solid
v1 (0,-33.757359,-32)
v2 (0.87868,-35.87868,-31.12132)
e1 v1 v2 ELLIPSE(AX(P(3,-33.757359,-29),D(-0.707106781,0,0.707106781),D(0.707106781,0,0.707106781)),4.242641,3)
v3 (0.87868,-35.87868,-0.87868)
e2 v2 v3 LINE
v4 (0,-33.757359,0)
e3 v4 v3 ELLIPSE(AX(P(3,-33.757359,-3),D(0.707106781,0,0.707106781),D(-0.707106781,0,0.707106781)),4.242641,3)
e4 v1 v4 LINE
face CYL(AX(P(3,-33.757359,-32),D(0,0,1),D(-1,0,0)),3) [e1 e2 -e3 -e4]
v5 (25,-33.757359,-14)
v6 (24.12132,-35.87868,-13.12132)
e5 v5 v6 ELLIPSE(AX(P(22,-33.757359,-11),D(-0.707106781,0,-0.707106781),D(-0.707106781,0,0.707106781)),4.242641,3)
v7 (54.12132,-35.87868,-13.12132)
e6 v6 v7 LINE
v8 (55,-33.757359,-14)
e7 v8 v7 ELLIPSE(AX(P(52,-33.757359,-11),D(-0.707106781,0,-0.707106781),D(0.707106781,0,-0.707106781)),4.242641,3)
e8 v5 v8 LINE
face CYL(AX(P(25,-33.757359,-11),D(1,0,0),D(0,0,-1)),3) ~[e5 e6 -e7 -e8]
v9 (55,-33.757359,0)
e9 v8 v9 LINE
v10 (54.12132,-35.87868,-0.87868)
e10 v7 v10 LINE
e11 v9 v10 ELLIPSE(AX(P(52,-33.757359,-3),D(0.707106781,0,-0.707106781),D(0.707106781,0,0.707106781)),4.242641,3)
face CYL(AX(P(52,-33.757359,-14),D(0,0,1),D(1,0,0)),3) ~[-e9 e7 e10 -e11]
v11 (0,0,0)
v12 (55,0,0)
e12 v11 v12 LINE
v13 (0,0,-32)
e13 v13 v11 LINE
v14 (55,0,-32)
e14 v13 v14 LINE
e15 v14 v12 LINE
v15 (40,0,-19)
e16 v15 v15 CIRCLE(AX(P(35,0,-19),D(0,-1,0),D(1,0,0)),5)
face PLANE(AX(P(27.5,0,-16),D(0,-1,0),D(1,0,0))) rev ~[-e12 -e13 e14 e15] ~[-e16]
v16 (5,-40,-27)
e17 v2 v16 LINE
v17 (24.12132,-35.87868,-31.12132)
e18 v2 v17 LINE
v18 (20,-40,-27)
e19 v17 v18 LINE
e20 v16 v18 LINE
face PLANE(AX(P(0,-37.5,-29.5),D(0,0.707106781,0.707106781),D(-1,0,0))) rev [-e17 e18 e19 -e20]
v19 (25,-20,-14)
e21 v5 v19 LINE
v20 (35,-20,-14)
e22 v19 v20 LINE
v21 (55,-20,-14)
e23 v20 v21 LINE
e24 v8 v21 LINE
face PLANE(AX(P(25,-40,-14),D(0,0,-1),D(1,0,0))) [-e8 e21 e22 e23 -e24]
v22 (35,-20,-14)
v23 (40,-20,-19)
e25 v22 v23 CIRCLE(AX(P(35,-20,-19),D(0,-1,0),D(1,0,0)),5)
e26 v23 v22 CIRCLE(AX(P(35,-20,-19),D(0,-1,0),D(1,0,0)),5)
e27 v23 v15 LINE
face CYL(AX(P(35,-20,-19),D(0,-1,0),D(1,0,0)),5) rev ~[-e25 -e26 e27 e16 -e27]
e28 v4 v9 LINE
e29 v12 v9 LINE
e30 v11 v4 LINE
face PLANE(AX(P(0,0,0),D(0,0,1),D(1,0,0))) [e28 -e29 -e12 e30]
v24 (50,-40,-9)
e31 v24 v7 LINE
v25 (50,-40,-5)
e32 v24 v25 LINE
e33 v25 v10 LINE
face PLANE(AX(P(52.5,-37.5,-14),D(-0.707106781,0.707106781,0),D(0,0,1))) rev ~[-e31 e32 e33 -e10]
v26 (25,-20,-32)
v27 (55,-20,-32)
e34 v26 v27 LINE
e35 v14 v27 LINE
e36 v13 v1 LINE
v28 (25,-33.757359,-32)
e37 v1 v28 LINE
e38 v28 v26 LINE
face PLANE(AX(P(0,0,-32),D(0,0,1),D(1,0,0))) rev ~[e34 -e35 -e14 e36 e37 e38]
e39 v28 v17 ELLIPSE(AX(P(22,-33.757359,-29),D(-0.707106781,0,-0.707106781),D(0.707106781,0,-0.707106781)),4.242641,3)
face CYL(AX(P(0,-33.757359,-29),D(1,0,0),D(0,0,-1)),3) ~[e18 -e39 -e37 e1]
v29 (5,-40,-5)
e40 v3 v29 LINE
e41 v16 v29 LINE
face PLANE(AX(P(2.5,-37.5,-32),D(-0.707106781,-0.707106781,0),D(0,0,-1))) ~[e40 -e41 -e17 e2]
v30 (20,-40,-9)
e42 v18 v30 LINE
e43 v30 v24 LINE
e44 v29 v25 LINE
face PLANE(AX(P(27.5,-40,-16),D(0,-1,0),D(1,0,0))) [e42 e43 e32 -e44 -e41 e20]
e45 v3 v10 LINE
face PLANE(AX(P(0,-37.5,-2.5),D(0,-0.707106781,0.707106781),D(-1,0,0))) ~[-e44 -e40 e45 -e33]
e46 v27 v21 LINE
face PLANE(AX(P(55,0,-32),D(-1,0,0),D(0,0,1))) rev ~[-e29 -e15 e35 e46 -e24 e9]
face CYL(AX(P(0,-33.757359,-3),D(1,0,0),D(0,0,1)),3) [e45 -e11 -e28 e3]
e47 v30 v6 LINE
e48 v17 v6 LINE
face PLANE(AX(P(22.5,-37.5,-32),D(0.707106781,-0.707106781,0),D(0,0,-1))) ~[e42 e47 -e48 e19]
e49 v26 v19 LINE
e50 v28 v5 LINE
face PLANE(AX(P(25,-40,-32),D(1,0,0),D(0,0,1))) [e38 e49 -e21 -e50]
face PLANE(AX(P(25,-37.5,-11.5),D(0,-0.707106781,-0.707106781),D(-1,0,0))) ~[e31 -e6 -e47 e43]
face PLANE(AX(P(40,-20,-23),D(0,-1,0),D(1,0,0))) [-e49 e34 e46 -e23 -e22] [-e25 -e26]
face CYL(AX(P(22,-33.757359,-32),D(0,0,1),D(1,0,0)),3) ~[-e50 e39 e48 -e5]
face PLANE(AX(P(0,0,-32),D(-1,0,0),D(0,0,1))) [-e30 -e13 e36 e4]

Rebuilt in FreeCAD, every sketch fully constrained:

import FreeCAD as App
import Part
import Sketcher
from FreeCAD import Vector


def edges_at(feature, points):
    """Names of the edges that pass closest to the given points."""
    edges = feature.Shape.Edges
    near = lambda p: min(range(len(edges)), key=lambda i: edges[i].distToShape(Part.Vertex(*p))[0])
    return sorted({f"Edge{near(p) + 1}" for p in points})

doc = App.newDocument("Part")
params = doc.addObject("Spreadsheet::Sheet", "Params")
for row, (alias, value) in enumerate([
    ("sketch1_width", "55 mm"),
    ("sketch1_height", "32 mm"),
    ("pad1_length", "40 mm"),
    ("sketch2_width", "30 mm"),
    ("sketch2_height", "18 mm"),
    ("pocket1_length", "20 mm"),
    ("sketch3_width", "30 mm"),
    ("sketch3_height", "18 mm"),
    ("pocket2_length", "20 mm"),
    ("sketch4_diameter", "10 mm"),
    ("chamfer_size", "5 mm"),
    ("fillet_radius", "3 mm"),
], start=1):
    params.set(f"A{row}", alias)
    params.set(f"B{row}", "=" + value)
    params.setAlias(f"B{row}", alias)

body = doc.addObject("PartDesign::Body", "Body")

# Sketch on XZ plane
sketch1 = doc.addObject("Sketcher::SketchObject", "Sketch")
body.addObject(sketch1)
sketch1.AttachmentSupport = (doc.XZ_Plane, [""])
sketch1.MapMode = "FlatFace"
sketch1.addGeometry(Part.LineSegment(Vector(0, 0, 0), Vector(0, -32, 0)), False)
sketch1.addGeometry(Part.LineSegment(Vector(0, -32, 0), Vector(55, -32, 0)), False)
sketch1.addGeometry(Part.LineSegment(Vector(55, -32, 0), Vector(55, 0, 0)), False)
sketch1.addGeometry(Part.LineSegment(Vector(55, 0, 0), Vector(0, 0, 0)), False)
sketch1.addConstraint(Sketcher.Constraint("Coincident", 0, 2, 1, 1))
sketch1.addConstraint(Sketcher.Constraint("Coincident", 1, 2, 2, 1))
sketch1.addConstraint(Sketcher.Constraint("Coincident", 2, 2, 3, 1))
sketch1.addConstraint(Sketcher.Constraint("Coincident", 3, 2, 0, 1))
sketch1.addConstraint(Sketcher.Constraint("Vertical", 0))
sketch1.addConstraint(Sketcher.Constraint("Horizontal", 1))
sketch1.addConstraint(Sketcher.Constraint("Vertical", 2))
sketch1.addConstraint(Sketcher.Constraint("Horizontal", 3))
sketch1.addConstraint(Sketcher.Constraint("Coincident", 3, 2, -1, 1))
sketch1.addConstraint(Sketcher.Constraint("DistanceX", 1, 1, 1, 2, 55.0))
sketch1.addConstraint(Sketcher.Constraint("DistanceY", 0, 2, 0, 1, 32.0))
sketch1.setExpression("Constraints[9]", "Params.sketch1_width")
sketch1.setExpression("Constraints[10]", "Params.sketch1_height")
pad1 = doc.addObject("PartDesign::Pad", "Pad")
body.addObject(pad1)
pad1.Profile = sketch1
pad1.setExpression("Length", "Params.pad1_length")

# Sketch on XZ plane
sketch2 = doc.addObject("Sketcher::SketchObject", "Sketch001")
body.addObject(sketch2)
sketch2.AttachmentSupport = (doc.XZ_Plane, [""])
sketch2.MapMode = "FlatFace"
sketch2.addGeometry(Part.LineSegment(Vector(21, -11, 0), Vector(21, -29, 0)), False)
sketch2.addGeometry(Part.LineSegment(Vector(21, -29, 0), Vector(51, -29, 0)), False)
sketch2.addGeometry(Part.LineSegment(Vector(51, -29, 0), Vector(51, -11, 0)), False)
sketch2.addGeometry(Part.LineSegment(Vector(51, -11, 0), Vector(21, -11, 0)), False)
sketch2.addConstraint(Sketcher.Constraint("Coincident", 0, 2, 1, 1))
sketch2.addConstraint(Sketcher.Constraint("Coincident", 1, 2, 2, 1))
sketch2.addConstraint(Sketcher.Constraint("Coincident", 2, 2, 3, 1))
sketch2.addConstraint(Sketcher.Constraint("Coincident", 3, 2, 0, 1))
sketch2.addConstraint(Sketcher.Constraint("Vertical", 0))
sketch2.addConstraint(Sketcher.Constraint("Horizontal", 1))
sketch2.addConstraint(Sketcher.Constraint("Vertical", 2))
sketch2.addConstraint(Sketcher.Constraint("Horizontal", 3))
sketch2.addConstraint(Sketcher.Constraint("DistanceX", 1, 1, 1, 2, 30.0))
sketch2.addConstraint(Sketcher.Constraint("DistanceY", 0, 2, 0, 1, 18.0))
sketch2.addConstraint(Sketcher.Constraint("DistanceX", -1, 1, 0, 2, 20.855819))
sketch2.addConstraint(Sketcher.Constraint("DistanceY", 0, 2, -1, 1, 29.244091))
sketch2.setExpression("Constraints[8]", "Params.sketch2_width")
sketch2.setExpression("Constraints[9]", "Params.sketch2_height")
pocket1 = doc.addObject("PartDesign::Pocket", "Pocket")
body.addObject(pocket1)
pocket1.Profile = sketch2
pocket1.setExpression("Length", "Params.pocket1_length")

# Sketch on XZ plane
sketch3 = doc.addObject("Sketcher::SketchObject", "Sketch002")
body.addObject(sketch3)
sketch3.AttachmentSupport = (doc.XZ_Plane, [""])
sketch3.MapMode = "FlatFace"
sketch3.AttachmentOffset = App.Placement(Vector(0, 0, 40), App.Rotation())
sketch3.addGeometry(Part.LineSegment(Vector(25, -14, 0), Vector(25, -32, 0)), False)
sketch3.addGeometry(Part.LineSegment(Vector(25, -32, 0), Vector(55, -32, 0)), False)
sketch3.addGeometry(Part.LineSegment(Vector(55, -32, 0), Vector(55, -14, 0)), False)
sketch3.addGeometry(Part.LineSegment(Vector(55, -14, 0), Vector(25, -14, 0)), False)
sketch3.addConstraint(Sketcher.Constraint("Coincident", 0, 2, 1, 1))
sketch3.addConstraint(Sketcher.Constraint("Coincident", 1, 2, 2, 1))
sketch3.addConstraint(Sketcher.Constraint("Coincident", 2, 2, 3, 1))
sketch3.addConstraint(Sketcher.Constraint("Coincident", 3, 2, 0, 1))
sketch3.addConstraint(Sketcher.Constraint("Vertical", 0))
sketch3.addConstraint(Sketcher.Constraint("Horizontal", 1))
sketch3.addConstraint(Sketcher.Constraint("Vertical", 2))
sketch3.addConstraint(Sketcher.Constraint("Horizontal", 3))
sketch3.addConstraint(Sketcher.Constraint("DistanceX", 1, 1, 1, 2, 30.0))
sketch3.addConstraint(Sketcher.Constraint("DistanceY", 0, 2, 0, 1, 18.0))
sketch3.addConstraint(Sketcher.Constraint("DistanceX", -1, 1, 0, 2, 25.0))
sketch3.addConstraint(Sketcher.Constraint("DistanceY", 0, 2, -1, 1, 32.0))
sketch3.setExpression("Constraints[8]", "Params.sketch3_width")
sketch3.setExpression("Constraints[9]", "Params.sketch3_height")
pocket2 = doc.addObject("PartDesign::Pocket", "Pocket001")
body.addObject(pocket2)
pocket2.Profile = sketch3
pocket2.setExpression("Length", "Params.pocket2_length")

# Sketch on XZ plane
sketch4 = doc.addObject("Sketcher::SketchObject", "Sketch003")
body.addObject(sketch4)
sketch4.AttachmentSupport = (doc.XZ_Plane, [""])
sketch4.MapMode = "FlatFace"
sketch4.AttachmentOffset = App.Placement(Vector(0, 0, 20), App.Rotation())
sketch4.addGeometry(Part.Circle(Vector(35, -19, 0), Vector(0, 0, 1), 5), False)
sketch4.addConstraint(Sketcher.Constraint("Diameter", 0, 10.0))
sketch4.addConstraint(Sketcher.Constraint("DistanceX", -1, 1, 0, 3, 35.0))
sketch4.addConstraint(Sketcher.Constraint("DistanceY", 0, 3, -1, 1, 19.0))
sketch4.setExpression("Constraints[0]", "Params.sketch4_diameter")
pocket3 = doc.addObject("PartDesign::Pocket", "Pocket002")
body.addObject(pocket3)
pocket3.Profile = sketch4
pocket3.Type = "ThroughAll"
doc.recompute()

chamfer = doc.addObject("PartDesign::Chamfer", "Chamfer")
body.addObject(chamfer)
chamfer.Base = (pocket3, edges_at(pocket3, [
    (12.5, -40, -32),
    (25, -40, -23),
    (40, -40, -14),
    (55, -40, -7),
    (0, -40, -16),
    (27.5, -40, 0),
]))
chamfer.setExpression("Size", "Params.chamfer_size")
doc.recompute()

fillet = doc.addObject("PartDesign::Fillet", "Fillet")
body.addObject(fillet)
fillet.Base = (chamfer, edges_at(chamfer, [
    (0, -35, -16),
    (12.5, -35, -32),
    (25, -35, -23),
    (40, -35, -14),
    (55, -35, -7),
    (27.5, -35, 0),
]))
fillet.setExpression("Radius", "Params.fillet_radius")

doc.recompute()
